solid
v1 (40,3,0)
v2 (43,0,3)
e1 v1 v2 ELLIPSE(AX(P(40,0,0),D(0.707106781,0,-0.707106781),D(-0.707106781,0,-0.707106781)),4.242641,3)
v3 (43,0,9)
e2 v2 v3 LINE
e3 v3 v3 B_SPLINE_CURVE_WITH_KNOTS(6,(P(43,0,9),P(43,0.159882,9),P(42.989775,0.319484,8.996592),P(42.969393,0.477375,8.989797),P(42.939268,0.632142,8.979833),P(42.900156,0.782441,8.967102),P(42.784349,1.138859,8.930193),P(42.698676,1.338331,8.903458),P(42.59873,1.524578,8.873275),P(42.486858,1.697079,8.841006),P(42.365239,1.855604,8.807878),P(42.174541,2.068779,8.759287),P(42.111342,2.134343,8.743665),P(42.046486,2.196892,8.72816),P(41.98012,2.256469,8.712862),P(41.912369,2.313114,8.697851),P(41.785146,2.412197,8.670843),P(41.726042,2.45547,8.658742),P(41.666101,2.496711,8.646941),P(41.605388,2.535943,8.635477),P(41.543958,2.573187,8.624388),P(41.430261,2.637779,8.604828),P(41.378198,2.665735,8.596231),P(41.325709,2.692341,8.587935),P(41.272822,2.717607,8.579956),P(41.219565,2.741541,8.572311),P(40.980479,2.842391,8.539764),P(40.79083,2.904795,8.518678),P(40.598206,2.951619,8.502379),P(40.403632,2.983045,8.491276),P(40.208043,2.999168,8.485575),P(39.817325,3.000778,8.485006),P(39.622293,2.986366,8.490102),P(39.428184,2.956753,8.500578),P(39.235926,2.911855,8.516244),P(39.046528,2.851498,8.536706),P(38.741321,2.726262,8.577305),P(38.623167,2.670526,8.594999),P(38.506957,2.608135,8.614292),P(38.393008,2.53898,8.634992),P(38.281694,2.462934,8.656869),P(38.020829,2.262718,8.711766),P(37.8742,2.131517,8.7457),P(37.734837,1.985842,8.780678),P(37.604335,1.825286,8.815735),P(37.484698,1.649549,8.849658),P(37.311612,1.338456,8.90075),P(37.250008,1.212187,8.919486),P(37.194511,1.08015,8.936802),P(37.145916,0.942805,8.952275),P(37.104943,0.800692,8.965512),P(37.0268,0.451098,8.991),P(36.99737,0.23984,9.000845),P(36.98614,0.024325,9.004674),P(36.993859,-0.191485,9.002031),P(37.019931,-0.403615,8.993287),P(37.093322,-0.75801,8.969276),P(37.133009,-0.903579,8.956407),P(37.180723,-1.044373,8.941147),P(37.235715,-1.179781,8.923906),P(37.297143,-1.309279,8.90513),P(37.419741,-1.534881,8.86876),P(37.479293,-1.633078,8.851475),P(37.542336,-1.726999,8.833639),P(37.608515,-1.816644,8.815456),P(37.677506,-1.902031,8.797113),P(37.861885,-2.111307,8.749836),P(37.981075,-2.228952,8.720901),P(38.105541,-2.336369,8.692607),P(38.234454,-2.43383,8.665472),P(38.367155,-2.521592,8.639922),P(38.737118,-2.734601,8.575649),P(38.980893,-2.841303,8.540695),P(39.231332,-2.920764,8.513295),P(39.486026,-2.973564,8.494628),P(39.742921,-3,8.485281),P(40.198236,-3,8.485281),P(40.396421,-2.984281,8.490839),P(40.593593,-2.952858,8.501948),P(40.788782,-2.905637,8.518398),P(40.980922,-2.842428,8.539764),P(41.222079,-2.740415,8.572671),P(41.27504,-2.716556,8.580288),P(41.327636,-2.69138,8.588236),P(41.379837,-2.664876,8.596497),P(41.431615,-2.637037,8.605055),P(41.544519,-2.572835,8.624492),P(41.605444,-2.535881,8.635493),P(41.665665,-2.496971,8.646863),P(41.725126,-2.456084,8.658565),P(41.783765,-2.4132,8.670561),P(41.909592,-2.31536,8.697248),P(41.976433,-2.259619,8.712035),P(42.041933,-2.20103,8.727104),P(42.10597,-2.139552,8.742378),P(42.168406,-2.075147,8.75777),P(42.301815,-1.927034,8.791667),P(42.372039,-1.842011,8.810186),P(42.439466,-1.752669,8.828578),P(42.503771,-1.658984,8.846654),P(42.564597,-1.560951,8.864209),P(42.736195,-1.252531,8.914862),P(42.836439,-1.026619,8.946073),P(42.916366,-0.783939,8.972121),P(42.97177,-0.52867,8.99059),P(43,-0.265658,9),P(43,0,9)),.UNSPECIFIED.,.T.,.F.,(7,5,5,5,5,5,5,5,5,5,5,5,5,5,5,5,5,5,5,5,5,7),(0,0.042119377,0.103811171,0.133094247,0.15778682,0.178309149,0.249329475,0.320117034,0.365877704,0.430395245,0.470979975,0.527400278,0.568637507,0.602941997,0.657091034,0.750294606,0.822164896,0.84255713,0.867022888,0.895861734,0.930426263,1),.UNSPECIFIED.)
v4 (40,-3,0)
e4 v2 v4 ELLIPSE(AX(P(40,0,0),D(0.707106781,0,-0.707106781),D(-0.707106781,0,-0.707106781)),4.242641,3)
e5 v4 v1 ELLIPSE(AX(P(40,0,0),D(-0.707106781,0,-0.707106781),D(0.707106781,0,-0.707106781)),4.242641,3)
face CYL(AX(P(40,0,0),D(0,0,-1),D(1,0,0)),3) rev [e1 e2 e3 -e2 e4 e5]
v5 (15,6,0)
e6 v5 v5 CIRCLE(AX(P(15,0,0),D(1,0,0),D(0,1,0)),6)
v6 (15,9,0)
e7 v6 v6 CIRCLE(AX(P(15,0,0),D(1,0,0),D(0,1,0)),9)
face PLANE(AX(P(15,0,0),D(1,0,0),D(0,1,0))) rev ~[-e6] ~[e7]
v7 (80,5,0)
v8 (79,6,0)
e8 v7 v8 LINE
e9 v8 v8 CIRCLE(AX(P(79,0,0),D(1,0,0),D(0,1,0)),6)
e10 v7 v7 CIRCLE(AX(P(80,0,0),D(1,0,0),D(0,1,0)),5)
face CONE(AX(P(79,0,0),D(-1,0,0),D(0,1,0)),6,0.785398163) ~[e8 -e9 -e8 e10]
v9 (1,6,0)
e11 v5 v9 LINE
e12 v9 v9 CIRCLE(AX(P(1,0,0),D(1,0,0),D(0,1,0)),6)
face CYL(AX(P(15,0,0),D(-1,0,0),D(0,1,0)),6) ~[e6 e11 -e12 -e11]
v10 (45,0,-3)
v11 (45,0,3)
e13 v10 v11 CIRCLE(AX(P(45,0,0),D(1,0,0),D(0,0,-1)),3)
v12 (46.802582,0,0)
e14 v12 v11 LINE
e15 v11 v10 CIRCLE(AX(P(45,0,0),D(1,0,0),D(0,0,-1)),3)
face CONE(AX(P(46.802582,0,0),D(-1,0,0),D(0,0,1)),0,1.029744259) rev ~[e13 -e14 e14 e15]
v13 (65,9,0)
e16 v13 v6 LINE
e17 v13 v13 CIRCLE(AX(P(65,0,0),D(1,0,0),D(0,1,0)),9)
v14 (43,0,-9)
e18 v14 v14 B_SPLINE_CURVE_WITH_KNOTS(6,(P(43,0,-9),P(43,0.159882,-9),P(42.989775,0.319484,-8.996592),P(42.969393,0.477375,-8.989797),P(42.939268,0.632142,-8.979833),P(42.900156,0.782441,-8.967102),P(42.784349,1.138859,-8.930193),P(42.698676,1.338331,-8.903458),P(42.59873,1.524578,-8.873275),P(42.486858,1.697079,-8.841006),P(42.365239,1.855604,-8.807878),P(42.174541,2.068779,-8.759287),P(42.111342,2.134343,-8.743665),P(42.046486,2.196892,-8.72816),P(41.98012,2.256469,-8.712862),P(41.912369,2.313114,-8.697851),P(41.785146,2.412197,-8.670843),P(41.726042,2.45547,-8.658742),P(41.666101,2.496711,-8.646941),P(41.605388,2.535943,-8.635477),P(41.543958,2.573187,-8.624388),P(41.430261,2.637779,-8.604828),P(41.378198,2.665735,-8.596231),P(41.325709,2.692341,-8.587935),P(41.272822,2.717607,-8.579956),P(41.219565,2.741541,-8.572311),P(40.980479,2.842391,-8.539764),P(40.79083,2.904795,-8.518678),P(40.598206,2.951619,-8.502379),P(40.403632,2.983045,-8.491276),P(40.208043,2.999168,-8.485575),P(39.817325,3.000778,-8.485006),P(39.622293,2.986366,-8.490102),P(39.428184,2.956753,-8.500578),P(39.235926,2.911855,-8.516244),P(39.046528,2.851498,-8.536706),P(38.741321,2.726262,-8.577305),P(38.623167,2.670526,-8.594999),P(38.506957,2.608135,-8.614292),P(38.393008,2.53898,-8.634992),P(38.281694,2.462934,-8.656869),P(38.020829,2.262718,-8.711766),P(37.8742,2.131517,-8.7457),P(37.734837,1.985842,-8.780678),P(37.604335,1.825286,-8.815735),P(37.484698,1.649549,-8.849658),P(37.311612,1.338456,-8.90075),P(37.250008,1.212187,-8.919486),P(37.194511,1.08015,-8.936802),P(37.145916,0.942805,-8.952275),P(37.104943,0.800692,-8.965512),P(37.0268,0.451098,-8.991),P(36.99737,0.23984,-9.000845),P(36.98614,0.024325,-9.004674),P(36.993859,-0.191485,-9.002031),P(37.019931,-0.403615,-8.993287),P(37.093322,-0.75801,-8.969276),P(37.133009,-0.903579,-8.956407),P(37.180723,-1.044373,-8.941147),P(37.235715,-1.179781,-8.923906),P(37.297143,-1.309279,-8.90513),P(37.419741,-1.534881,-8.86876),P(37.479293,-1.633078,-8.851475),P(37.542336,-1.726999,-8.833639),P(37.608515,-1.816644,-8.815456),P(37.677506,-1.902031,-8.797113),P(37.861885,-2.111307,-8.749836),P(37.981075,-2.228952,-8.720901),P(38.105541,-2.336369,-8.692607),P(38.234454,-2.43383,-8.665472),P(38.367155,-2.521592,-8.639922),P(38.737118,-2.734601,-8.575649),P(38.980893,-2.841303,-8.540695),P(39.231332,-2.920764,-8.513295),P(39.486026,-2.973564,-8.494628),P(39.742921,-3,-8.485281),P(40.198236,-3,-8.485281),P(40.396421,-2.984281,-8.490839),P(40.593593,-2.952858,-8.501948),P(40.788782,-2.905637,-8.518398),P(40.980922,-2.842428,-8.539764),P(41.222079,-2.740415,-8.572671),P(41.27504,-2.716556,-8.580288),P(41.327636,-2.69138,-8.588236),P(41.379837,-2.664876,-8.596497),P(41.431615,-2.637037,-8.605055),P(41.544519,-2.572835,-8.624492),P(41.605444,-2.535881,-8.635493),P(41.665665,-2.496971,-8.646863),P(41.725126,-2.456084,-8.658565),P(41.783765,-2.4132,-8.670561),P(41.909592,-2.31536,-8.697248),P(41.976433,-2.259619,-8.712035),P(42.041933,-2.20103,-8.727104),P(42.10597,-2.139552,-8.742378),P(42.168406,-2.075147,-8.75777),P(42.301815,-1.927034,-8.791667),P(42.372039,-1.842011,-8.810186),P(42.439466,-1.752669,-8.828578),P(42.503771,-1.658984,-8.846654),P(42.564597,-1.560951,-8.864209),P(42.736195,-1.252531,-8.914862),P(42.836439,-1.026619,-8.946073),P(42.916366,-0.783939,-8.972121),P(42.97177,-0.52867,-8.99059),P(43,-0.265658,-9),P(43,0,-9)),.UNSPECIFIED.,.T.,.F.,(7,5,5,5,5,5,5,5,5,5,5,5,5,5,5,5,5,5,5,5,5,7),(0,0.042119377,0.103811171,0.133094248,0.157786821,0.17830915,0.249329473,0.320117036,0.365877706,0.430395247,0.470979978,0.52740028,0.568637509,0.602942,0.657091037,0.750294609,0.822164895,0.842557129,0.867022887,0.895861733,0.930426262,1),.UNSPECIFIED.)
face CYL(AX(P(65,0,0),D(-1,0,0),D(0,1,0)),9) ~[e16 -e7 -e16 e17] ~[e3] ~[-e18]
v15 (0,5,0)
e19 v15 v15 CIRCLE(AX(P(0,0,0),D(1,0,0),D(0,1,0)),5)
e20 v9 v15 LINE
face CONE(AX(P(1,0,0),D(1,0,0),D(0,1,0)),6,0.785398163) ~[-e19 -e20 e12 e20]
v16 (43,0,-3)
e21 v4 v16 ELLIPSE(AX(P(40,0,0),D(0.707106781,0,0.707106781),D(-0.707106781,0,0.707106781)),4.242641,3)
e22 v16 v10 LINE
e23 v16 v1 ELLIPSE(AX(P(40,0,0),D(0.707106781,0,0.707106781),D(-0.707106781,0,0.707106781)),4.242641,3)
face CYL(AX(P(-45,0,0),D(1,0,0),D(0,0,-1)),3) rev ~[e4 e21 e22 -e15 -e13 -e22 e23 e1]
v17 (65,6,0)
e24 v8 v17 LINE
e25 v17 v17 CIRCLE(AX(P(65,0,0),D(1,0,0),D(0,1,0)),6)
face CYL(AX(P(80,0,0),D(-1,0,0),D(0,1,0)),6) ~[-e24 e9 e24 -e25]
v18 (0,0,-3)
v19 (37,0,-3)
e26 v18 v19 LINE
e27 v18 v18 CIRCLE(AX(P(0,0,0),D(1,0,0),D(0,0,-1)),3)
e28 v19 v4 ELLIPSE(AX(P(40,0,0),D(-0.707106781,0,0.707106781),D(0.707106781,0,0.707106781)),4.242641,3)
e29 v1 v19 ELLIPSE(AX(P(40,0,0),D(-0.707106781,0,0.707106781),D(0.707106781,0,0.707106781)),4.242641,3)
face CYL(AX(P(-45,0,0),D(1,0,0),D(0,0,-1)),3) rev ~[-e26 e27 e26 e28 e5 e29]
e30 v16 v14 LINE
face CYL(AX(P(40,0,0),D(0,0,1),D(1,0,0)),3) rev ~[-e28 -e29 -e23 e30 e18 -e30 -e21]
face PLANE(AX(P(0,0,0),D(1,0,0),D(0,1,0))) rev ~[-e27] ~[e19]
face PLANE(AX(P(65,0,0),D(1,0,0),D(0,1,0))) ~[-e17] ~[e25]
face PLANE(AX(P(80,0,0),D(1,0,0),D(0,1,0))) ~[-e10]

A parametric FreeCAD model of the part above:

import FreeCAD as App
import Part
import Sketcher
Q = App.Units.Quantity


def edges_at(feature, points):
    """Names of the edges that pass closest to the given points."""
    edges = feature.Shape.Edges
    near = lambda p: min(range(len(edges)), key=lambda i: edges[i].distToShape(Part.Vertex(*p))[0])
    return sorted({f"Edge{near(p) + 1}" for p in points})


def add_polygon(sketch, points):
    """Adds a closed chain of lines whose ends are joined by coincident constraints."""
    first, n = sketch.GeometryCount, len(points)
    for a, b in zip(points, points[1:] + points[:1]):
        sketch.addGeometry(Part.LineSegment(App.Vector(*a, 0), App.Vector(*b, 0)), False)
    for i in range(n):
        sketch.addConstraint(Sketcher.Constraint("Coincident", first + i, 2, first + (i + 1) % n, 1))

doc = App.newDocument("Part")
body = doc.addObject("PartDesign::Body", "Body")

# Sketch on XY plane
sketch1 = body.newObject("Sketcher::SketchObject", "Sketch")
sketch1.AttachmentSupport = (doc.getObject("XY_Plane"), [""])
sketch1.MapMode = "FlatFace"
add_polygon(sketch1, [(0, 0), (80, 0), (80, 6), (65, 6), (65, 9), (15, 9), (15, 6), (0, 6)])  # lines 0-7
sketch1.addConstraint([
    Sketcher.Constraint("Horizontal", 0),
    Sketcher.Constraint("Vertical", 1),
    Sketcher.Constraint("Horizontal", 2),
    Sketcher.Constraint("Vertical", 3),
    Sketcher.Constraint("Horizontal", 4),
    Sketcher.Constraint("Vertical", 5),
    Sketcher.Constraint("Horizontal", 6),
    Sketcher.Constraint("Vertical", 7),
    Sketcher.Constraint("Coincident", 7, 2, -1, 1),
    Sketcher.Constraint("Horizontal", 2, 2, 5, 2),
    Sketcher.Constraint("Equal", 2, 6),
    Sketcher.Constraint("DistanceX", 0, 1, 0, 2, Q("80 mm")),
    Sketcher.Constraint("DistanceX", 2, 2, 2, 1, Q("15 mm")),
    Sketcher.Constraint("DistanceY", 1, 1, 1, 2, Q("6 mm")),
    Sketcher.Constraint("DistanceY", 3, 1, 3, 2, Q("3 mm")),
])
revolution = body.newObject("PartDesign::Revolution", "Revolution")
revolution.Profile = sketch1
revolution.ReferenceAxis = (sketch1, ["H_Axis"])
revolution.Angle = 360

# Sketch on XY plane
sketch2 = body.newObject("Sketcher::SketchObject", "Sketch001")
sketch2.AttachmentSupport = (doc.getObject("XY_Plane"), [""])
sketch2.MapMode = "FlatFace"
sketch2.addGeometry(Part.Circle(App.Vector(40, 0, 0), App.Vector(0, 0, 1), 3), False)
sketch2.addConstraint([
    Sketcher.Constraint("PointOnObject", 0, 3, -1),
    Sketcher.Constraint("Diameter", 0, Q("6 mm")),
    Sketcher.Constraint("DistanceX", -1, 1, 0, 3, Q("40 mm")),
])
pocket1 = body.newObject("PartDesign::Pocket", "Pocket")
pocket1.Profile = sketch2
pocket1.Type = "ThroughAll"
pocket1.Midplane = True
doc.recompute()

chamfer = body.newObject("PartDesign::Chamfer", "Chamfer")
chamfer.Base = (pocket1, edges_at(pocket1, [(0, -6, 0), (80, -6, 0)]))
chamfer.Size = 1

# Sketch on YZ plane
sketch3 = body.newObject("Sketcher::SketchObject", "Sketch002")
sketch3.AttachmentSupport = (doc.getObject("YZ_Plane"), [""])
sketch3.MapMode = "FlatFace"
sketch3.addGeometry(Part.Circle(App.Vector(0, 0, 0), App.Vector(0, 0, 1), 3), False)
sketch3.addConstraint([
    Sketcher.Constraint("Coincident", 0, 3, -1, 1),
    Sketcher.Constraint("Diameter", 0, Q("6 mm")),
])
doc.recompute()
hole = body.newObject("PartDesign::Hole", "Hole")
hole.Profile = sketch3
hole.ThreadType = "None"
hole.Diameter = 6
hole.DepthType = "Dimension"
hole.Depth = 45
hole.DrillPoint = "Angled"
hole.DrillPointAngle = 118
hole.Reversed = True

doc.recompute()
